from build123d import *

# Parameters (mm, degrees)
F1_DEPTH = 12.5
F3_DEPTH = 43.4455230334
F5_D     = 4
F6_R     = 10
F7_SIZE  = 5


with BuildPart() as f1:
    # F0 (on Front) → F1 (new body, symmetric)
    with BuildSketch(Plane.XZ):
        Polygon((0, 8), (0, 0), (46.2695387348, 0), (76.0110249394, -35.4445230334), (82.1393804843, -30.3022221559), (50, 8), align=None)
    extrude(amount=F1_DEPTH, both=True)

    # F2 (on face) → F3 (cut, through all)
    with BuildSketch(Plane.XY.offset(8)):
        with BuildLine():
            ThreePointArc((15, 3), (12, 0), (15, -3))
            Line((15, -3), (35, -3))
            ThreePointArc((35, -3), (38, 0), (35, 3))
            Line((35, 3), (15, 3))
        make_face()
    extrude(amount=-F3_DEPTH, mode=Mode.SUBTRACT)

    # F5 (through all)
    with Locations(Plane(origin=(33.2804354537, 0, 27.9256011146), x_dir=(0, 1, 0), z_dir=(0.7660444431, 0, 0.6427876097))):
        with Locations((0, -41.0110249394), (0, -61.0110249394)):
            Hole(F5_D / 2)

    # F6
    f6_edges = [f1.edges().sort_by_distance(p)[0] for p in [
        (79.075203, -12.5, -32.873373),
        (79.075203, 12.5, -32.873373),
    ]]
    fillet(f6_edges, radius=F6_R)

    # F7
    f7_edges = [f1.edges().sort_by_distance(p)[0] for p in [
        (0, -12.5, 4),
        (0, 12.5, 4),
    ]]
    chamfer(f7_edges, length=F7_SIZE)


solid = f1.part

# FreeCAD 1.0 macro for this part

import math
import FreeCAD as App
import Part
import Sketcher

V = App.Vector
Q = App.Units.Quantity


def edges_at(feature, points):
    """Names of the edges that pass closest to the given points."""
    edges = feature.Shape.Edges
    near = lambda p: min(range(len(edges)), key=lambda i: edges[i].distToShape(Part.Vertex(*p))[0])
    return sorted({f"Edge{near(p) + 1}" for p in points})

doc = App.newDocument("Part")
body = doc.addObject("PartDesign::Body", "Body")

# Sketch on XZ plane
sketch1 = body.newObject("Sketcher::SketchObject", "Sketch")
sketch1.AttachmentSupport = (doc.getObject("XZ_Plane"), [""])
sketch1.MapMode = "FlatFace"
sketch1.addGeometry(Part.LineSegment(V(0, 8, 0), V(0, 0, 0)), False)
sketch1.addGeometry(Part.LineSegment(V(0, 0, 0), V(46.269539, 0, 0)), False)
sketch1.addGeometry(Part.LineSegment(V(46.269539, 0, 0), V(76.011025, -35.444523, 0)), False)
sketch1.addGeometry(Part.LineSegment(V(76.011025, -35.444523, 0), V(82.13938, -30.302222, 0)), False)
sketch1.addGeometry(Part.LineSegment(V(82.13938, -30.302222, 0), V(50, 8, 0)), False)
sketch1.addGeometry(Part.LineSegment(V(50, 8, 0), V(0, 8, 0)), False)
sketch1.addConstraint(Sketcher.Constraint("Coincident", 0, 2, 1, 1))
sketch1.addConstraint(Sketcher.Constraint("Coincident", 1, 2, 2, 1))
sketch1.addConstraint(Sketcher.Constraint("Coincident", 2, 2, 3, 1))
sketch1.addConstraint(Sketcher.Constraint("Coincident", 3, 2, 4, 1))
sketch1.addConstraint(Sketcher.Constraint("Coincident", 4, 2, 5, 1))
sketch1.addConstraint(Sketcher.Constraint("Coincident", 5, 2, 0, 1))
sketch1.addConstraint(Sketcher.Constraint("Vertical", 0))
sketch1.addConstraint(Sketcher.Constraint("Horizontal", 1))
sketch1.addConstraint(Sketcher.Constraint("Horizontal", 5))
sketch1.addConstraint(Sketcher.Constraint("Coincident", 0, 2, -1, 1))
sketch1.addConstraint(Sketcher.Constraint("Perpendicular", 2, 3))
sketch1.addConstraint(Sketcher.Constraint("Perpendicular", 3, 4))
sketch1.addConstraint(Sketcher.Constraint("DistanceX", 5, 2, 5, 1, 50.0))
sketch1.addConstraint(Sketcher.Constraint("DistanceY", 0, 2, 0, 1, 8.0))
sketch1.addConstraint(Sketcher.Constraint("Angle", 2, Q("-50 deg")))
sketch1.addConstraint(Sketcher.Constraint("Distance", 3, 8.0))
sketch1.addConstraint(Sketcher.Constraint("Distance", 4, 50.0))
pad1 = body.newObject("PartDesign::Pad", "Pad")
pad1.Profile = sketch1
pad1.Length = 25
pad1.Midplane = True

# Sketch on XY plane
sketch2 = body.newObject("Sketcher::SketchObject", "Sketch001")
sketch2.AttachmentSupport = (doc.getObject("XY_Plane"), [""])
sketch2.MapMode = "FlatFace"
sketch2.AttachmentOffset = App.Placement(V(0, 0, 8), App.Rotation())
sketch2.addGeometry(Part.ArcOfCircle(Part.Circle(V(15, 0, 0), V(0, 0, 1), 3), math.radians(90), math.radians(270)), False)
sketch2.addGeometry(Part.LineSegment(V(15, -3, 0), V(35, -3, 0)), False)
sketch2.addGeometry(Part.ArcOfCircle(Part.Circle(V(35, 0, 0), V(0, 0, 1), 3), math.radians(-90), math.radians(90)), False)
sketch2.addGeometry(Part.LineSegment(V(35, 3, 0), V(15, 3, 0)), False)
sketch2.addConstraint(Sketcher.Constraint("Tangent", 0, 2, 1, 1))
sketch2.addConstraint(Sketcher.Constraint("Tangent", 1, 2, 2, 1))
sketch2.addConstraint(Sketcher.Constraint("Tangent", 2, 2, 3, 1))
sketch2.addConstraint(Sketcher.Constraint("Tangent", 3, 2, 0, 1))
sketch2.addConstraint(Sketcher.Constraint("Horizontal", 1))
sketch2.addConstraint(Sketcher.Constraint("Horizontal", 3))
sketch2.addConstraint(Sketcher.Constraint("PointOnObject", 0, 3, -1))
sketch2.addConstraint(Sketcher.Constraint("Radius", 0, 3.0))
sketch2.addConstraint(Sketcher.Constraint("DistanceX", 1, 1, 1, 2, 20.0))
sketch2.addConstraint(Sketcher.Constraint("DistanceX", -1, 1, 0, 3, 15.0))
pocket1 = body.newObject("PartDesign::Pocket", "Pocket")
pocket1.Profile = sketch2
pocket1.Type = "ThroughAll"

# Sketch on an angled plane
sketch3 = body.newObject("Sketcher::SketchObject", "Sketch002")
sketch3.Placement = App.Placement(V(33.280435, 0, 27.925601), App.Rotation(V(0, 1, 0), V(-0.64278761, 0, 0.766044443), V(0.766044443, 0, 0.64278761), "ZXY"))
sketch3.addGeometry(Part.Circle(V(0, -41.011025, 0), V(0, 0, 1), 2), False)
sketch3.addGeometry(Part.Circle(V(0, -61.011025, 0), V(0, 0, 1), 2), False)
sketch3.addConstraint(Sketcher.Constraint("Equal", 0, 1))
sketch3.addConstraint(Sketcher.Constraint("PointOnObject", 0, 3, -2))
sketch3.addConstraint(Sketcher.Constraint("PointOnObject", 1, 3, -2))
sketch3.addConstraint(Sketcher.Constraint("Diameter", 0, 4.0))
sketch3.addConstraint(Sketcher.Constraint("DistanceY", 1, 3, 0, 3, 20.0))
sketch3.addConstraint(Sketcher.Constraint("DistanceY", 0, 3, -1, 1, 41.011025))
doc.recompute()
hole = body.newObject("PartDesign::Hole", "Hole")
hole.Profile = sketch3
hole.ThreadType = "None"
hole.Diameter = 4
hole.DepthType = "ThroughAll"
doc.recompute()

fillet = body.newObject("PartDesign::Fillet", "Fillet")
fillet.Base = (hole, edges_at(hole, [(79.075, -12.5, -32.873), (79.075, 12.5, -32.873)]))
fillet.Radius = 10
doc.recompute()

chamfer = body.newObject("PartDesign::Chamfer", "Chamfer")
chamfer.Base = (fillet, edges_at(fillet, [(0, -12.5, 4), (0, 12.5, 4)]))
chamfer.Size = 5

doc.recompute()
